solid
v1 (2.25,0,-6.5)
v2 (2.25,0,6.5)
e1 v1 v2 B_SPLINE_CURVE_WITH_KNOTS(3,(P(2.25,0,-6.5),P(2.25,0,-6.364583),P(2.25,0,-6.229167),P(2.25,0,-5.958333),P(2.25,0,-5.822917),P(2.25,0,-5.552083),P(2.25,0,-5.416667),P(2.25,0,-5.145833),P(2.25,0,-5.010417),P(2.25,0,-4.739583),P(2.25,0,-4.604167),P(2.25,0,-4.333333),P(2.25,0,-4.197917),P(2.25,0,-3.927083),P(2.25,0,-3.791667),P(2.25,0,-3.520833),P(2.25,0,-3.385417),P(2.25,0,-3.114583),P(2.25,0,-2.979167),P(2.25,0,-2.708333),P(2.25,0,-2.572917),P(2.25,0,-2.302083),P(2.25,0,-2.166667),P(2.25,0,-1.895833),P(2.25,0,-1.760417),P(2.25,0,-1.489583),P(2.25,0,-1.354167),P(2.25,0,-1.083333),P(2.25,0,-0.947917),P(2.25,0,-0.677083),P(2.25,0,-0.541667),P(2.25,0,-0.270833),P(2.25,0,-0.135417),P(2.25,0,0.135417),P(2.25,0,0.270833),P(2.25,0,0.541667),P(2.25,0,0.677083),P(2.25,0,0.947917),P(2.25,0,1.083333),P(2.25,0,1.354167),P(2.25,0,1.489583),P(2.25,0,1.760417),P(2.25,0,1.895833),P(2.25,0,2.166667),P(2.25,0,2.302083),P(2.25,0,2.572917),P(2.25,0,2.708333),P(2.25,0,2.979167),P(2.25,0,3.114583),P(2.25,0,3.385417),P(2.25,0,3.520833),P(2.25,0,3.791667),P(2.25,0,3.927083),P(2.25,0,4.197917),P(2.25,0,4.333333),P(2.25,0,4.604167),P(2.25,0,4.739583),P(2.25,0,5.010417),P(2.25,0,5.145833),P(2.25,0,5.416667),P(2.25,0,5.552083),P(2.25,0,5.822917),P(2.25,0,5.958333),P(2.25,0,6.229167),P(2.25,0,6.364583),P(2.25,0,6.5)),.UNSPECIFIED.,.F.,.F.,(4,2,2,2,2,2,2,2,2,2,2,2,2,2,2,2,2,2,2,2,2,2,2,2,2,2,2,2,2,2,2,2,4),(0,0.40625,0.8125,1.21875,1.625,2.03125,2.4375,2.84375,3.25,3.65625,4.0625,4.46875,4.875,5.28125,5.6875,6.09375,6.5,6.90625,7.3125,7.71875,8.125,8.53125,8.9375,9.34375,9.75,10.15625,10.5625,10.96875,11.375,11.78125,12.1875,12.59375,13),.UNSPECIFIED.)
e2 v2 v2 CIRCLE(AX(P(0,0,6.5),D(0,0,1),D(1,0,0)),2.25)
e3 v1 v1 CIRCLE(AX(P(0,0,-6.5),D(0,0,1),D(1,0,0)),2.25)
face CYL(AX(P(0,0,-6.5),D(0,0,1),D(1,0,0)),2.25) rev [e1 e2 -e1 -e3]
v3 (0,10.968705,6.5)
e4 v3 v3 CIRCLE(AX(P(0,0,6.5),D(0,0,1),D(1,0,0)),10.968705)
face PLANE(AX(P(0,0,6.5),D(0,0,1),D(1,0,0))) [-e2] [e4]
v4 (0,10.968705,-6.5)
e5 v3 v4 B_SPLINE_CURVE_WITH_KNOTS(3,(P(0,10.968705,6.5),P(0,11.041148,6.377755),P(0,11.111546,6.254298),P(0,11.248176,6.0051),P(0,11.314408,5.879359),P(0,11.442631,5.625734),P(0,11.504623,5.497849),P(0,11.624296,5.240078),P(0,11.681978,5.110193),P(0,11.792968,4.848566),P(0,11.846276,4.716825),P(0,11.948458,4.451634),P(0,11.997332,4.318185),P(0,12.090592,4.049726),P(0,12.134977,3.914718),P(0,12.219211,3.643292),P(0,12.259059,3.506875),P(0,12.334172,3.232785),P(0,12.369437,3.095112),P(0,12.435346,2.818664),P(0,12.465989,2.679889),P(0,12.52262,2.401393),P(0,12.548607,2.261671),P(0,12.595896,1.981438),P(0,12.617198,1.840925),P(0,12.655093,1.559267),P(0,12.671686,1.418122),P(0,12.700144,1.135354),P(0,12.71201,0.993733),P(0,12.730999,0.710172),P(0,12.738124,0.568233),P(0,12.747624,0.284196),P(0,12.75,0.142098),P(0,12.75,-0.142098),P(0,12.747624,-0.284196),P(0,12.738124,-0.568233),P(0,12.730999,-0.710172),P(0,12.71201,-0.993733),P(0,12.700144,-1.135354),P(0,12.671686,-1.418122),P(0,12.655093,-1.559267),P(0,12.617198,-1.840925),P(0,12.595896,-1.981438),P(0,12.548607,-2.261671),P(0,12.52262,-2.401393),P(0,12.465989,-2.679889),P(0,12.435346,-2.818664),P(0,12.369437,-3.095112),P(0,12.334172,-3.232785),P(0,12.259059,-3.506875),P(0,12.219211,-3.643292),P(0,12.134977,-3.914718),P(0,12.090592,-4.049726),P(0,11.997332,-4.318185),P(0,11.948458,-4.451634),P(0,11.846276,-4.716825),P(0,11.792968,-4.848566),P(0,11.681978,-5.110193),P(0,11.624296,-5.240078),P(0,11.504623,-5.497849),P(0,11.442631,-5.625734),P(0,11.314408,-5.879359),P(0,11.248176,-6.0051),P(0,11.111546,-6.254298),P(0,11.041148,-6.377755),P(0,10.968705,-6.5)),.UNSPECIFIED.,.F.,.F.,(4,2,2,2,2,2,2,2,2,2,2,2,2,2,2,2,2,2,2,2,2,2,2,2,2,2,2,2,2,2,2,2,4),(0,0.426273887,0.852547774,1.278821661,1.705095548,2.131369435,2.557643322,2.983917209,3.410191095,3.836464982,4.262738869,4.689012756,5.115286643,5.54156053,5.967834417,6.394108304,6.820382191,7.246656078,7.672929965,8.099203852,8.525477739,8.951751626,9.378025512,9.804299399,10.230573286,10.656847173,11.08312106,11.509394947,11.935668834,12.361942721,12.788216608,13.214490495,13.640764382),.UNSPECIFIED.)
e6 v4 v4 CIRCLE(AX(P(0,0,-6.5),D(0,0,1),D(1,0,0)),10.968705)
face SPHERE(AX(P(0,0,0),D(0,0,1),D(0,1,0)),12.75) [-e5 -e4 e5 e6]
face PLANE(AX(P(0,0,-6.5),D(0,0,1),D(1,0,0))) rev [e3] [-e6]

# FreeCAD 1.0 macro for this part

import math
import FreeCAD as App
import Part
import Sketcher
from FreeCAD import Vector
Q = App.Units.Quantity

doc = App.newDocument("Part")
body = doc.addObject("PartDesign::Body", "Body")

sketch1 = body.newObject("Sketcher::SketchObject", "Sketch")
sketch1.AttachmentSupport = (doc.getObject("XY_Plane"), [""])
sketch1.MapMode = "FlatFace"
sketch1.addGeometry(Part.Circle(Vector(0, 0, 0), Vector(0, 0, 1), 13), False)
sketch1.addConstraint(Sketcher.Constraint("Coincident", 0, 3, -1, 1))
sketch1.addConstraint(Sketcher.Constraint("Diameter", 0, Q("25.5 mm")))
pad1 = body.newObject("PartDesign::Pad", "Pad")
pad1.Profile = sketch1
pad1.Length = 13
pad1.Midplane = True

sketch2 = body.newObject("Sketcher::SketchObject", "Sketch001")
sketch2.AttachmentSupport = (doc.getObject("XY_Plane"), [""])
sketch2.MapMode = "FlatFace"
sketch2.addGeometry(Part.Circle(Vector(0, 0, 0), Vector(0, 0, 1), 2.2), False)
sketch2.addConstraint(Sketcher.Constraint("Coincident", 0, 3, -1, 1))
sketch2.addConstraint(Sketcher.Constraint("Diameter", 0, Q("4.5 mm")))
pocket1 = body.newObject("PartDesign::Pocket", "Pocket")
pocket1.Profile = sketch2
pocket1.Length = 13
pocket1.Midplane = True

sketch3 = body.newObject("Sketcher::SketchObject", "Sketch002")
sketch3.AttachmentSupport = (doc.getObject("YZ_Plane"), [""])
sketch3.MapMode = "FlatFace"
sketch3.addGeometry(Part.LineSegment(Vector(13.9, 6.5, 0), Vector(11, 6.5, 0)), False)
sketch3.addGeometry(Part.ArcOfCircle(Part.Circle(Vector(0, 0, 0), Vector(0, 0, 1), 12.7), math.radians(-31), math.radians(31)), False)
sketch3.addGeometry(Part.LineSegment(Vector(11, -6.5, 0), Vector(13.9, -6.5, 0)), False)
sketch3.addGeometry(Part.LineSegment(Vector(13.9, -6.5, 0), Vector(13.9, 6.5, 0)), False)
sketch3.addConstraint(Sketcher.Constraint("Coincident", 0, 2, 1, 2))
sketch3.addConstraint(Sketcher.Constraint("Coincident", 1, 1, 2, 1))
sketch3.addConstraint(Sketcher.Constraint("Coincident", 2, 2, 3, 1))
sketch3.addConstraint(Sketcher.Constraint("Coincident", 3, 2, 0, 1))
sketch3.addConstraint(Sketcher.Constraint("Horizontal", 0))
sketch3.addConstraint(Sketcher.Constraint("Horizontal", 2))
sketch3.addConstraint(Sketcher.Constraint("Vertical", 3))
sketch3.addConstraint(Sketcher.Constraint("Coincident", 1, 3, -1, 1))
sketch3.addConstraint(Sketcher.Constraint("Vertical", 0, 2, 1, 1))
sketch3.addConstraint(Sketcher.Constraint("DistanceY", 3, 1, 3, 2, Q("13 mm")))
sketch3.addConstraint(Sketcher.Constraint("Radius", 1, Q("12.75 mm")))
sketch3.addConstraint(Sketcher.Constraint("DistanceX", 0, 2, 0, 1, Q("2.967688 mm")))
groove = body.newObject("PartDesign::Groove", "Groove")
groove.Profile = sketch3
groove.ReferenceAxis = (sketch3, ["V_Axis"])
groove.Angle = 360

doc.recompute()
